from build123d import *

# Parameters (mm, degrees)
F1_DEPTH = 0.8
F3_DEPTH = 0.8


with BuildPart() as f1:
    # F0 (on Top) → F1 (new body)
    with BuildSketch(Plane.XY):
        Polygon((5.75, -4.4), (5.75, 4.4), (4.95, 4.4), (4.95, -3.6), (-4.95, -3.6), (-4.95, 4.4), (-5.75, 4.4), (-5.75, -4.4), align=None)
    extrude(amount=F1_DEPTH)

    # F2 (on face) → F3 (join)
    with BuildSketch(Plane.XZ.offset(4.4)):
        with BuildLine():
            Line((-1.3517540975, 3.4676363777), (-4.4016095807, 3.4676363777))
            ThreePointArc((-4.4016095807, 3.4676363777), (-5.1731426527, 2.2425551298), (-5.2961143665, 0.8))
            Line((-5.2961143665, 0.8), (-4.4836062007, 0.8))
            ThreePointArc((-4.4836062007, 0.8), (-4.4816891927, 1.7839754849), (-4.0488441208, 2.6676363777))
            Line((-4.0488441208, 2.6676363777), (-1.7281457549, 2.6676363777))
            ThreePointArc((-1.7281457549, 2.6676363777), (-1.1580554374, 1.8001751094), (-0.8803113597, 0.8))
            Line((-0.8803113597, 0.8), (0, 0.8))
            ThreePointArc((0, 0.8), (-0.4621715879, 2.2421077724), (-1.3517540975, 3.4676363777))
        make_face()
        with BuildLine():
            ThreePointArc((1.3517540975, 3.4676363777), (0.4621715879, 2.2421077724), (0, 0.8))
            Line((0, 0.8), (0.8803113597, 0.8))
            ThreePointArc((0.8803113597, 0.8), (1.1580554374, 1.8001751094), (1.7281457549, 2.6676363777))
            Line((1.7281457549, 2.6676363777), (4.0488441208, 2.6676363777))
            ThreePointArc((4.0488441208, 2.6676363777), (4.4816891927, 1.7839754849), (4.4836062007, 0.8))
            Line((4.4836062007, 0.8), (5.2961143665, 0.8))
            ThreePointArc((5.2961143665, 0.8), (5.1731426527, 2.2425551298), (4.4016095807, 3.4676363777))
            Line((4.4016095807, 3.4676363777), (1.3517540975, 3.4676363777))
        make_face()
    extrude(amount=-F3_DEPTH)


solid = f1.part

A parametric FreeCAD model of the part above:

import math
import FreeCAD as App
import Part
import Sketcher

V = App.Vector
Q = App.Units.Quantity

doc = App.newDocument("Part")
params = doc.addObject("Spreadsheet::Sheet", "Params")
for row, (alias, value) in enumerate([
    ("sketch1_height", "8 mm"),
    ("sketch1_width", "0.8 mm"),
    ("sketch1_width2", "9.9 mm"),
    ("sketch1_height2", "8.8 mm"),
    ("pad1_length", "0.8 mm"),
    ("pad2_length", "0.8 mm"),
], start=1):
    params.set(f"A{row}", alias)
    params.set(f"B{row}", "=" + value)
    params.setAlias(f"B{row}", alias)

body = doc.addObject("PartDesign::Body", "Body")

sketch1 = body.newObject("Sketcher::SketchObject", "Sketch")
sketch1.AttachmentSupport = (doc.getObject("XY_Plane"), [""])
sketch1.MapMode = "FlatFace"
sketch1.addGeometry(Part.LineSegment(V(5.8, -4.4, 0), V(5.8, 4.4, 0)), False)
sketch1.addGeometry(Part.LineSegment(V(5.8, 4.4, 0), V(5, 4.4, 0)), False)
sketch1.addGeometry(Part.LineSegment(V(5, 4.4, 0), V(5, -3.6, 0)), False)
sketch1.addGeometry(Part.LineSegment(V(5, -3.6, 0), V(-5, -3.6, 0)), False)
sketch1.addGeometry(Part.LineSegment(V(-5, -3.6, 0), V(-5, 4.4, 0)), False)
sketch1.addGeometry(Part.LineSegment(V(-5, 4.4, 0), V(-5.8, 4.4, 0)), False)
sketch1.addGeometry(Part.LineSegment(V(-5.8, 4.4, 0), V(-5.8, -4.4, 0)), False)
sketch1.addGeometry(Part.LineSegment(V(-5.8, -4.4, 0), V(5.8, -4.4, 0)), False)
sketch1.addConstraint(Sketcher.Constraint("Coincident", 0, 2, 1, 1))
sketch1.addConstraint(Sketcher.Constraint("Coincident", 1, 2, 2, 1))
sketch1.addConstraint(Sketcher.Constraint("Coincident", 2, 2, 3, 1))
sketch1.addConstraint(Sketcher.Constraint("Coincident", 3, 2, 4, 1))
sketch1.addConstraint(Sketcher.Constraint("Coincident", 4, 2, 5, 1))
sketch1.addConstraint(Sketcher.Constraint("Coincident", 5, 2, 6, 1))
sketch1.addConstraint(Sketcher.Constraint("Coincident", 6, 2, 7, 1))
sketch1.addConstraint(Sketcher.Constraint("Coincident", 7, 2, 0, 1))
sketch1.addConstraint(Sketcher.Constraint("Vertical", 0))
sketch1.addConstraint(Sketcher.Constraint("Horizontal", 1))
sketch1.addConstraint(Sketcher.Constraint("Vertical", 2))
sketch1.addConstraint(Sketcher.Constraint("Horizontal", 3))
sketch1.addConstraint(Sketcher.Constraint("Vertical", 4))
sketch1.addConstraint(Sketcher.Constraint("Horizontal", 5))
sketch1.addConstraint(Sketcher.Constraint("Vertical", 6))
sketch1.addConstraint(Sketcher.Constraint("Horizontal", 7))
sketch1.addConstraint(Sketcher.Constraint("Symmetric", 0, 2, 6, 2, -1, 1))
sketch1.addConstraint(Sketcher.Constraint("Symmetric", 1, 2, 4, 2, -2))
sketch1.addConstraint(Sketcher.Constraint("DistanceY", 2, 2, 2, 1, Q("8 mm")))
sketch1.addConstraint(Sketcher.Constraint("DistanceX", 1, 2, 1, 1, Q("0.8 mm")))
sketch1.addConstraint(Sketcher.Constraint("DistanceX", 3, 2, 3, 1, Q("9.9 mm")))
sketch1.addConstraint(Sketcher.Constraint("DistanceY", 0, 1, 0, 2, Q("8.8 mm")))
sketch1.setExpression("Constraints[18]", "Params.sketch1_height")
sketch1.setExpression("Constraints[19]", "Params.sketch1_width")
sketch1.setExpression("Constraints[20]", "Params.sketch1_width2")
sketch1.setExpression("Constraints[21]", "Params.sketch1_height2")
pad1 = body.newObject("PartDesign::Pad", "Pad")
pad1.Profile = sketch1
pad1.setExpression("Length", "Params.pad1_length")

sketch2 = body.newObject("Sketcher::SketchObject", "Sketch001")
sketch2.AttachmentSupport = (doc.getObject("XZ_Plane"), [""])
sketch2.MapMode = "FlatFace"
sketch2.AttachmentOffset = App.Placement(V(0, 0, 4.4), App.Rotation())
sketch2.addGeometry(Part.LineSegment(V(-1.4, 3.5, 0), V(-4.4, 3.5, 0)), False)
sketch2.addGeometry(Part.ArcOfCircle(Part.Circle(V(-2.3, 1.3, 0), V(0, 0, 1), 3.1), math.radians(134), math.radians(189)), False)
sketch2.addGeometry(Part.LineSegment(V(-5.3, 0.8, 0), V(-4.5, 0.8, 0)), False)
sketch2.addGeometry(Part.ArcOfCircle(Part.Circle(V(-2.4, 1.3, 0), V(0, 0, 1), 2.2), math.radians(141), math.radians(193)), False)
sketch2.addGeometry(Part.LineSegment(V(-4, 2.7, 0), V(-1.7, 2.7, 0)), False)
sketch2.addGeometry(Part.ArcOfCircle(Part.Circle(V(-4.2, 0.4, 0), V(0, 0, 1), 3.4), math.radians(7), math.radians(42)), False)
sketch2.addGeometry(Part.LineSegment(V(-0.9, 0.8, 0), V(0, 0.8, 0)), False)
sketch2.addGeometry(Part.ArcOfCircle(Part.Circle(V(-4.7, 0.1, 0), V(0, 0, 1), 4.8), math.radians(9), math.radians(45)), False)
sketch2.addGeometry(Part.ArcOfCircle(Part.Circle(V(4.7, 0.1, 0), V(0, 0, 1), 4.8), math.radians(135), math.radians(171)), False)
sketch2.addGeometry(Part.LineSegment(V(0, 0.8, 0), V(0.9, 0.8, 0)), False)
sketch2.addGeometry(Part.ArcOfCircle(Part.Circle(V(4.2, 0.4, 0), V(0, 0, 1), 3.4), math.radians(138), math.radians(173)), False)
sketch2.addGeometry(Part.LineSegment(V(1.7, 2.7, 0), V(4, 2.7, 0)), False)
sketch2.addGeometry(Part.ArcOfCircle(Part.Circle(V(2.4, 1.3, 0), V(0, 0, 1), 2.2), math.radians(-13), math.radians(39)), False)
sketch2.addGeometry(Part.LineSegment(V(4.5, 0.8, 0), V(5.3, 0.8, 0)), False)
sketch2.addGeometry(Part.ArcOfCircle(Part.Circle(V(2.3, 1.3, 0), V(0, 0, 1), 3.1), math.radians(-9), math.radians(46)), False)
sketch2.addGeometry(Part.LineSegment(V(4.4, 3.5, 0), V(1.4, 3.5, 0)), False)
sketch2.addConstraint(Sketcher.Constraint("Coincident", 0, 2, 1, 1))
sketch2.addConstraint(Sketcher.Constraint("Coincident", 1, 2, 2, 1))
sketch2.addConstraint(Sketcher.Constraint("Coincident", 2, 2, 3, 2))
sketch2.addConstraint(Sketcher.Constraint("Coincident", 3, 1, 4, 1))
sketch2.addConstraint(Sketcher.Constraint("Coincident", 4, 2, 5, 2))
sketch2.addConstraint(Sketcher.Constraint("Coincident", 5, 1, 6, 1))
sketch2.addConstraint(Sketcher.Constraint("Coincident", 6, 2, 7, 1))
sketch2.addConstraint(Sketcher.Constraint("Coincident", 7, 2, 0, 1))
sketch2.addConstraint(Sketcher.Constraint("Coincident", 8, 2, 9, 1))
sketch2.addConstraint(Sketcher.Constraint("Coincident", 9, 2, 10, 2))
sketch2.addConstraint(Sketcher.Constraint("Coincident", 10, 1, 11, 1))
sketch2.addConstraint(Sketcher.Constraint("Coincident", 11, 2, 12, 2))
sketch2.addConstraint(Sketcher.Constraint("Coincident", 12, 1, 13, 1))
sketch2.addConstraint(Sketcher.Constraint("Coincident", 13, 2, 14, 1))
sketch2.addConstraint(Sketcher.Constraint("Coincident", 14, 2, 15, 1))
sketch2.addConstraint(Sketcher.Constraint("Coincident", 15, 2, 8, 1))
sketch2.addConstraint(Sketcher.Constraint("Horizontal", 0))
sketch2.addConstraint(Sketcher.Constraint("Horizontal", 2))
sketch2.addConstraint(Sketcher.Constraint("Horizontal", 4))
sketch2.addConstraint(Sketcher.Constraint("Horizontal", 6))
sketch2.addConstraint(Sketcher.Constraint("Horizontal", 9))
sketch2.addConstraint(Sketcher.Constraint("Horizontal", 11))
sketch2.addConstraint(Sketcher.Constraint("Horizontal", 13))
sketch2.addConstraint(Sketcher.Constraint("Horizontal", 15))
sketch2.addConstraint(Sketcher.Constraint("Coincident", 8, 2, 6, 2))
sketch2.addConstraint(Sketcher.Constraint("Equal", 7, 8))
sketch2.addConstraint(Sketcher.Constraint("Equal", 5, 10))
sketch2.addConstraint(Sketcher.Constraint("Equal", 3, 12))
sketch2.addConstraint(Sketcher.Constraint("Equal", 1, 14))
sketch2.addConstraint(Sketcher.Constraint("Symmetric", 7, 3, 8, 3, -2))
sketch2.addConstraint(Sketcher.Constraint("Symmetric", 5, 3, 10, 3, -2))
sketch2.addConstraint(Sketcher.Constraint("Symmetric", 3, 3, 12, 3, -2))
sketch2.addConstraint(Sketcher.Constraint("Symmetric", 1, 3, 14, 3, -2))
sketch2.addConstraint(Sketcher.Constraint("Horizontal", 2, 2, 5, 1))
sketch2.addConstraint(Sketcher.Constraint("Horizontal", 4, 2, 10, 1))
sketch2.addConstraint(Sketcher.Constraint("Horizontal", 9, 2, 12, 1))
sketch2.addConstraint(Sketcher.Constraint("Horizontal", 7, 2, 14, 2))
sketch2.addConstraint(Sketcher.Constraint("DistanceY", -1, 1, 1, 2, Q("0.8 mm")))
sketch2.addConstraint(Sketcher.Constraint("DistanceY", 3, 1, 0, 2, Q("0.8 mm")))
sketch2.addConstraint(Sketcher.Constraint("Radius", 5, Q("3.35605 mm")))
sketch2.addConstraint(Sketcher.Constraint("DistanceX", 4, 1, 4, 2, Q("2.320698 mm")))
sketch2.addConstraint(Sketcher.Constraint("Radius", 1, Q("3.064224 mm")))
sketch2.addConstraint(Sketcher.Constraint("Radius", 3, Q("2.188296 mm")))
sketch2.addConstraint(Sketcher.Constraint("Radius", 7, Q("4.786117 mm")))
sketch2.addConstraint(Sketcher.Constraint("DistanceX", 2, 1, 2, 2, Q("0.812508 mm")))
sketch2.addConstraint(Sketcher.Constraint("DistanceX", 6, 1, 6, 2, Q("0.880311 mm")))
sketch2.addConstraint(Sketcher.Constraint("DistanceX", 1, 3, -1, 1, Q("2.267899 mm")))
sketch2.addConstraint(Sketcher.Constraint("DistanceX", 7, 3, 5, 3, Q("0.517498 mm")))
sketch2.addConstraint(Sketcher.Constraint("DistanceX", 0, 2, 0, 1, Q("3.049855 mm")))
sketch2.addConstraint(Sketcher.Constraint("DistanceX", 3, 3, -1, 1, Q("2.35038 mm")))
sketch2.addConstraint(Sketcher.Constraint("DistanceY", -1, 1, 5, 3, Q("0.412912 mm")))
pad2 = body.newObject("PartDesign::Pad", "Pad001")
pad2.Profile = sketch2
pad2.setExpression("Length", "Params.pad2_length")
pad2.Reversed = True

doc.recompute()
